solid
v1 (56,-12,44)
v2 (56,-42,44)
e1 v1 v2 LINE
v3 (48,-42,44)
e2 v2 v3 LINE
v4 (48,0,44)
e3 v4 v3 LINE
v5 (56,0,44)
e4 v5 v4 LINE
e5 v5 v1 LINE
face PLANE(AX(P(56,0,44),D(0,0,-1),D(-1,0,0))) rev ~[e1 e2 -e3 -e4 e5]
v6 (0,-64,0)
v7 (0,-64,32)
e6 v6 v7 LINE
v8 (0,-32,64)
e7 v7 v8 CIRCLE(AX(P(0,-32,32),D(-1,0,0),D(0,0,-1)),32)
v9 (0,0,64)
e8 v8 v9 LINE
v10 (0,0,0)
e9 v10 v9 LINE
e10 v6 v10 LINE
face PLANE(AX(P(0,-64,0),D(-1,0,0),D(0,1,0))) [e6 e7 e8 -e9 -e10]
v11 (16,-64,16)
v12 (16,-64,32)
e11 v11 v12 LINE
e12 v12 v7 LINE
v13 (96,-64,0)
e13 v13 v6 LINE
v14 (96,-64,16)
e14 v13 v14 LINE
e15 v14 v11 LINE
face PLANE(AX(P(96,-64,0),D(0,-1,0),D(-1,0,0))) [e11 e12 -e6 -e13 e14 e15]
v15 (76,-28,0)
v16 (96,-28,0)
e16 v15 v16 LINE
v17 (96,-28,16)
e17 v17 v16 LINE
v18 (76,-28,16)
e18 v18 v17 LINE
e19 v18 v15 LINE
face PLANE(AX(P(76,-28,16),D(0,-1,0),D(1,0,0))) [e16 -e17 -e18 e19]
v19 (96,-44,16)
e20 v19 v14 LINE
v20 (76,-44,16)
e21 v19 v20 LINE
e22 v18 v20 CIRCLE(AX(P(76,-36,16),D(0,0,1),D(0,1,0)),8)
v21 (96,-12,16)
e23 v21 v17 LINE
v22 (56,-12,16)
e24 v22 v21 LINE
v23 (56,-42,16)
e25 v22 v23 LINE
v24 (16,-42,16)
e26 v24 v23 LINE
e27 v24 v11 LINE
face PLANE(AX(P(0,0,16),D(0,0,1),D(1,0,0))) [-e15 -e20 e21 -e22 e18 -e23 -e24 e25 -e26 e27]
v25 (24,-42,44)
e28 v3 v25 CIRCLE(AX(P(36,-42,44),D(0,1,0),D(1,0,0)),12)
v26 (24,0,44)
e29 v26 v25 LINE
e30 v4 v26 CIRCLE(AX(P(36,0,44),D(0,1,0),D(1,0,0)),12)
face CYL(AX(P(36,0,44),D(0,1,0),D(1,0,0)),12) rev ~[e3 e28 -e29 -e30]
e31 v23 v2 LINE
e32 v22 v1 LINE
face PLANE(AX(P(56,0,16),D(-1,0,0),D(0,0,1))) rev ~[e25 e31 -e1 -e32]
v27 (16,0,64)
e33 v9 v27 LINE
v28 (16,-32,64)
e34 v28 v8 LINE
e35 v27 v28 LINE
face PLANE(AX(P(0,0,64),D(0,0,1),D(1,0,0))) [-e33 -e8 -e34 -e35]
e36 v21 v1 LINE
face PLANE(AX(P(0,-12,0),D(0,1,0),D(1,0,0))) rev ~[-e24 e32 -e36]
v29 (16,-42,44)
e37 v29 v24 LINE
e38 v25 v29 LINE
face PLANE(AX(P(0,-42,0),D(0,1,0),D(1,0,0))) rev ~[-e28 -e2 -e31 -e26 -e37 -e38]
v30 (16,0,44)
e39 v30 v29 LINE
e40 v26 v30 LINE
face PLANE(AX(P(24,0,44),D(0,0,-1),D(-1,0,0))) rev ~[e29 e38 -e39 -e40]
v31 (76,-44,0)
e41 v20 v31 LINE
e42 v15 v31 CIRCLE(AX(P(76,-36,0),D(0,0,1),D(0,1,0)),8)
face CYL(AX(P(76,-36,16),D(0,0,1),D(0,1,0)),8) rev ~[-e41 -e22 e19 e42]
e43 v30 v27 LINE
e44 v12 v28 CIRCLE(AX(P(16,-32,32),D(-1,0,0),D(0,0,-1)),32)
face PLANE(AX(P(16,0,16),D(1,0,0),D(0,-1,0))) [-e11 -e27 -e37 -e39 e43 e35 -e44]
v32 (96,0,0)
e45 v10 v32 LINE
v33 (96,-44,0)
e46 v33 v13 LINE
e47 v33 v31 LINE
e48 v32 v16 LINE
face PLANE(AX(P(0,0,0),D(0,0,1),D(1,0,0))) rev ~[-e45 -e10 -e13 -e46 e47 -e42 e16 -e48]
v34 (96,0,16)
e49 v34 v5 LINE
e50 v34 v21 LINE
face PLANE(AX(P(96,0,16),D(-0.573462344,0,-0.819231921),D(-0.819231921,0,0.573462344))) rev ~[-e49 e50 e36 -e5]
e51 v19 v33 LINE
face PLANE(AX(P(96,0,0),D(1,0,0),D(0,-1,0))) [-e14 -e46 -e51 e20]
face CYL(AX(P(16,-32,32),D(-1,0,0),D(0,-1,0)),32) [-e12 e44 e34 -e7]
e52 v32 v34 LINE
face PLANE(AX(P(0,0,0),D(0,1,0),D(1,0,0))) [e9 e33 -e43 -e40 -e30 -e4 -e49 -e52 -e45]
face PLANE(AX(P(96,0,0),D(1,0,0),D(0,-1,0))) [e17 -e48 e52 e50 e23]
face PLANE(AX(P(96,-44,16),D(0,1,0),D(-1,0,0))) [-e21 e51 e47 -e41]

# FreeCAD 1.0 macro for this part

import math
import FreeCAD as App
import Part
import Sketcher

V = App.Vector
Q = App.Units.Quantity


def edges_at(feature, points):
    """Names of the edges that pass closest to the given points."""
    edges = feature.Shape.Edges
    near = lambda p: min(range(len(edges)), key=lambda i: edges[i].distToShape(Part.Vertex(*p))[0])
    return sorted({f"Edge{near(p) + 1}" for p in points})


def add_polygon(sketch, points):
    """Adds a closed chain of lines whose ends are joined by coincident constraints."""
    first, n = sketch.GeometryCount, len(points)
    for a, b in zip(points, points[1:] + points[:1]):
        sketch.addGeometry(Part.LineSegment(App.Vector(*a, 0), App.Vector(*b, 0)), False)
    for i in range(n):
        sketch.addConstraint(Sketcher.Constraint("Coincident", first + i, 2, first + (i + 1) % n, 1))

doc = App.newDocument("Part")
params = doc.addObject("Spreadsheet::Sheet", "Params")
for row, (alias, value) in enumerate([
    ("sketch1_width", "96 mm"),
    ("sketch1_height", "64 mm"),
    ("pad1_length", "16 mm"),
    ("sketch2_width", "16 mm"),
    ("sketch2_height", "64 mm"),
    ("pad2_length", "48 mm"),
    ("fillet_radius", "32 mm"),
    ("sketch3_radius", "12 mm"),
    ("sketch3_width", "40 mm"),
    ("sketch3_height", "28 mm"),
    ("pad3_length", "42 mm"),
    ("sketch4_width", "40 mm"),
    ("sketch4_height", "28 mm"),
    ("pad4_length", "12 mm"),
    ("sketch5_radius", "8 mm"),
    ("sketch5_width", "20 mm"),
    ("pocket1_length", "16 mm"),
], start=1):
    params.set(f"A{row}", alias)
    params.set(f"B{row}", "=" + value)
    params.setAlias(f"B{row}", alias)

body = doc.addObject("PartDesign::Body", "Body")

# Sketch on XY plane
sketch1 = body.newObject("Sketcher::SketchObject", "Sketch")
sketch1.AttachmentSupport = (doc.getObject("XY_Plane"), [""])
sketch1.MapMode = "FlatFace"
add_polygon(sketch1, [(96, 0), (0, 0), (0, -64), (96, -64)])  # lines 0-3
sketch1.addConstraint(Sketcher.Constraint("Horizontal", 0))
sketch1.addConstraint(Sketcher.Constraint("Vertical", 1))
sketch1.addConstraint(Sketcher.Constraint("Horizontal", 2))
sketch1.addConstraint(Sketcher.Constraint("Vertical", 3))
sketch1.addConstraint(Sketcher.Constraint("Coincident", 0, 2, -1, 1))
sketch1.addConstraint(Sketcher.Constraint("DistanceX", 0, 2, 0, 1, Q("96 mm")))
sketch1.addConstraint(Sketcher.Constraint("DistanceY", 1, 2, 1, 1, Q("64 mm")))
sketch1.setExpression("Constraints[9]", "Params.sketch1_width")
sketch1.setExpression("Constraints[10]", "Params.sketch1_height")
pad1 = body.newObject("PartDesign::Pad", "Pad")
pad1.Profile = sketch1
pad1.setExpression("Length", "Params.pad1_length")

# Sketch on XY plane
sketch2 = body.newObject("Sketcher::SketchObject", "Sketch001")
sketch2.AttachmentSupport = (doc.getObject("XY_Plane"), [""])
sketch2.MapMode = "FlatFace"
sketch2.AttachmentOffset = App.Placement(V(0, 0, 16), App.Rotation())
add_polygon(sketch2, [(16, 0), (0, 0), (0, -64), (16, -64)])  # lines 0-3
sketch2.addConstraint(Sketcher.Constraint("Horizontal", 0))
sketch2.addConstraint(Sketcher.Constraint("Vertical", 1))
sketch2.addConstraint(Sketcher.Constraint("Horizontal", 2))
sketch2.addConstraint(Sketcher.Constraint("Vertical", 3))
sketch2.addConstraint(Sketcher.Constraint("Coincident", 0, 2, -1, 1))
sketch2.addConstraint(Sketcher.Constraint("DistanceX", 0, 2, 0, 1, Q("16 mm")))
sketch2.addConstraint(Sketcher.Constraint("DistanceY", 1, 2, 1, 1, Q("64 mm")))
sketch2.setExpression("Constraints[9]", "Params.sketch2_width")
sketch2.setExpression("Constraints[10]", "Params.sketch2_height")
pad2 = body.newObject("PartDesign::Pad", "Pad001")
pad2.Profile = sketch2
pad2.setExpression("Length", "Params.pad2_length")
doc.recompute()

fillet = body.newObject("PartDesign::Fillet", "Fillet")
fillet.Base = (pad2, edges_at(pad2, [(8, -64, 64)]))
fillet.setExpression("Radius", "Params.fillet_radius")

# Sketch on XZ plane
sketch3 = body.newObject("Sketcher::SketchObject", "Sketch002")
sketch3.AttachmentSupport = (doc.getObject("XZ_Plane"), [""])
sketch3.MapMode = "FlatFace"
sketch3.addGeometry(Part.LineSegment(V(56, 16, 0), V(16, 16, 0)), False)
sketch3.addGeometry(Part.LineSegment(V(16, 16, 0), V(16, 44, 0)), False)
sketch3.addGeometry(Part.LineSegment(V(16, 44, 0), V(24, 44, 0)), False)
sketch3.addGeometry(Part.ArcOfCircle(Part.Circle(V(36, 44, 0), V(0, 0, 1), 12), math.radians(180), math.radians(360)), False)
sketch3.addGeometry(Part.LineSegment(V(48, 44, 0), V(56, 44, 0)), False)
sketch3.addGeometry(Part.LineSegment(V(56, 44, 0), V(56, 16, 0)), False)
sketch3.addConstraint(Sketcher.Constraint("Coincident", 0, 2, 1, 1))
sketch3.addConstraint(Sketcher.Constraint("Coincident", 1, 2, 2, 1))
sketch3.addConstraint(Sketcher.Constraint("Coincident", 2, 2, 3, 1))
sketch3.addConstraint(Sketcher.Constraint("Coincident", 3, 2, 4, 1))
sketch3.addConstraint(Sketcher.Constraint("Coincident", 4, 2, 5, 1))
sketch3.addConstraint(Sketcher.Constraint("Coincident", 5, 2, 0, 1))
sketch3.addConstraint(Sketcher.Constraint("Horizontal", 0))
sketch3.addConstraint(Sketcher.Constraint("Vertical", 1))
sketch3.addConstraint(Sketcher.Constraint("Horizontal", 2))
sketch3.addConstraint(Sketcher.Constraint("Horizontal", 4))
sketch3.addConstraint(Sketcher.Constraint("Vertical", 5))
sketch3.addConstraint(Sketcher.Constraint("Horizontal", 3, 3, 1, 2))
sketch3.addConstraint(Sketcher.Constraint("Horizontal", 2, 2, 3, 2))
sketch3.addConstraint(Sketcher.Constraint("Equal", 2, 4))
sketch3.addConstraint(Sketcher.Constraint("Radius", 3, Q("12 mm")))
sketch3.addConstraint(Sketcher.Constraint("DistanceX", 0, 2, 0, 1, Q("40 mm")))
sketch3.addConstraint(Sketcher.Constraint("DistanceY", 1, 1, 1, 2, Q("28 mm")))
sketch3.addConstraint(Sketcher.Constraint("DistanceX", -1, 1, 2, 2, Q("24 mm")))
sketch3.addConstraint(Sketcher.Constraint("DistanceY", -1, 1, 3, 3, Q("44 mm")))
sketch3.setExpression("Constraints[14]", "Params.sketch3_radius")
sketch3.setExpression("Constraints[15]", "Params.sketch3_width")
sketch3.setExpression("Constraints[16]", "Params.sketch3_height")
pad3 = body.newObject("PartDesign::Pad", "Pad002")
pad3.Profile = sketch3
pad3.setExpression("Length", "Params.pad3_length")

# Sketch on XZ plane
sketch4 = body.newObject("Sketcher::SketchObject", "Sketch003")
sketch4.AttachmentSupport = (doc.getObject("XZ_Plane"), [""])
sketch4.MapMode = "FlatFace"
add_polygon(sketch4, [(96, 16), (56, 16), (56, 44)])  # lines 0-2
sketch4.addConstraint(Sketcher.Constraint("Horizontal", 0))
sketch4.addConstraint(Sketcher.Constraint("Vertical", 1))
sketch4.addConstraint(Sketcher.Constraint("DistanceX", 0, 2, 0, 1, Q("40 mm")))
sketch4.addConstraint(Sketcher.Constraint("DistanceY", 1, 1, 1, 2, Q("28 mm")))
sketch4.addConstraint(Sketcher.Constraint("DistanceX", -1, 1, 0, 2, Q("56 mm")))
sketch4.addConstraint(Sketcher.Constraint("DistanceY", -1, 1, 0, 2, Q("16 mm")))
sketch4.setExpression("Constraints[5]", "Params.sketch4_width")
sketch4.setExpression("Constraints[6]", "Params.sketch4_height")
pad4 = body.newObject("PartDesign::Pad", "Pad003")
pad4.Profile = sketch4
pad4.setExpression("Length", "Params.pad4_length")

# Sketch on XY plane
sketch5 = body.newObject("Sketcher::SketchObject", "Sketch004")
sketch5.AttachmentSupport = (doc.getObject("XY_Plane"), [""])
sketch5.MapMode = "FlatFace"
sketch5.AttachmentOffset = App.Placement(V(0, 0, 16), App.Rotation())
sketch5.addGeometry(Part.LineSegment(V(76, -44, 0), V(96, -44, 0)), False)
sketch5.addGeometry(Part.LineSegment(V(96, -44, 0), V(96, -28, 0)), False)
sketch5.addGeometry(Part.LineSegment(V(96, -28, 0), V(76, -28, 0)), False)
sketch5.addGeometry(Part.ArcOfCircle(Part.Circle(V(76, -36, 0), V(0, 0, 1), 8), math.radians(90), math.radians(270)), False)
sketch5.addConstraint(Sketcher.Constraint("Coincident", 0, 2, 1, 1))
sketch5.addConstraint(Sketcher.Constraint("Coincident", 1, 2, 2, 1))
sketch5.addConstraint(Sketcher.Constraint("Tangent", 2, 2, 3, 1))
sketch5.addConstraint(Sketcher.Constraint("Tangent", 3, 2, 0, 1))
sketch5.addConstraint(Sketcher.Constraint("Horizontal", 0))
sketch5.addConstraint(Sketcher.Constraint("Vertical", 1))
sketch5.addConstraint(Sketcher.Constraint("Horizontal", 2))
sketch5.addConstraint(Sketcher.Constraint("Radius", 3, Q("8 mm")))
sketch5.addConstraint(Sketcher.Constraint("DistanceX", 0, 1, 0, 2, Q("20 mm")))
sketch5.addConstraint(Sketcher.Constraint("DistanceX", -1, 1, 3, 3, Q("76 mm")))
sketch5.addConstraint(Sketcher.Constraint("DistanceY", 3, 3, -1, 1, Q("36 mm")))
sketch5.setExpression("Constraints[7]", "Params.sketch5_radius")
sketch5.setExpression("Constraints[8]", "Params.sketch5_width")
pocket1 = body.newObject("PartDesign::Pocket", "Pocket")
pocket1.Profile = sketch5
pocket1.setExpression("Length", "Params.pocket1_length")

doc.recompute()
